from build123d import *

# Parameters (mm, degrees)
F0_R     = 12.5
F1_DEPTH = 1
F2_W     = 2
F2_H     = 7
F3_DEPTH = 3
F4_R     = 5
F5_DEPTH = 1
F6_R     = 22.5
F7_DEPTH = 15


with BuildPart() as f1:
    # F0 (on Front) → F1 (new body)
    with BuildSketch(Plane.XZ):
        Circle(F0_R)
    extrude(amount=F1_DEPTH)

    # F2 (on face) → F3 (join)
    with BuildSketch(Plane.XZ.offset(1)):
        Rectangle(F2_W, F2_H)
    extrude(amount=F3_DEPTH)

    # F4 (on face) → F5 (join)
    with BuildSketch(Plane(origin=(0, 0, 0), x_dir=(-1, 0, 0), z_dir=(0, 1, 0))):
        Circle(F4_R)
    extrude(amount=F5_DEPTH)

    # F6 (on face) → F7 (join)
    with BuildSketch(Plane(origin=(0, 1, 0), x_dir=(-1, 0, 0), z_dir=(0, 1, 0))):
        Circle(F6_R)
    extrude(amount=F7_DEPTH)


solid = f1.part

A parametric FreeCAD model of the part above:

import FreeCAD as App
import Part
import Sketcher

V = App.Vector
Q = App.Units.Quantity

doc = App.newDocument("Part")
params = doc.addObject("Spreadsheet::Sheet", "Params")
for row, (alias, value) in enumerate([
    ("sketch1_diameter", "25 mm"),
    ("pad1_length", "1 mm"),
    ("sketch2_width", "2 mm"),
    ("sketch2_height", "7 mm"),
    ("pad2_length", "3 mm"),
    ("sketch3_diameter", "10 mm"),
    ("pad3_length", "1 mm"),
    ("sketch4_diameter", "45 mm"),
    ("pad4_length", "15 mm"),
], start=1):
    params.set(f"A{row}", alias)
    params.set(f"B{row}", "=" + value)
    params.setAlias(f"B{row}", alias)

body = doc.addObject("PartDesign::Body", "Body")

# Sketch on XZ plane
sketch1 = body.newObject("Sketcher::SketchObject", "Sketch")
sketch1.AttachmentSupport = (doc.getObject("XZ_Plane"), [""])
sketch1.MapMode = "FlatFace"
sketch1.addGeometry(Part.Circle(V(0, 0, 0), V(0, 0, 1), 12), False)
sketch1.addConstraint([
    Sketcher.Constraint("Coincident", 0, 3, -1, 1),
    Sketcher.Constraint("Diameter", 0, Q("25 mm")),
])
sketch1.setExpression("Constraints[1]", "Params.sketch1_diameter")
pad1 = body.newObject("PartDesign::Pad", "Pad")
pad1.Profile = sketch1
pad1.setExpression("Length", "Params.pad1_length")

# Sketch on XZ plane
sketch2 = body.newObject("Sketcher::SketchObject", "Sketch001")
sketch2.AttachmentSupport = (doc.getObject("XZ_Plane"), [""])
sketch2.MapMode = "FlatFace"
sketch2.AttachmentOffset = App.Placement(V(0, 0, 1), App.Rotation())
sketch2.addGeometry([
    Part.LineSegment(V(-1, 3.5, 0), V(-1, -3.5, 0)),
    Part.LineSegment(V(-1, -3.5, 0), V(1, -3.5, 0)),
    Part.LineSegment(V(1, -3.5, 0), V(1, 3.5, 0)),
    Part.LineSegment(V(1, 3.5, 0), V(-1, 3.5, 0)),
], False)
sketch2.addConstraint([
    Sketcher.Constraint("Coincident", 0, 2, 1, 1),
    Sketcher.Constraint("Coincident", 1, 2, 2, 1),
    Sketcher.Constraint("Coincident", 2, 2, 3, 1),
    Sketcher.Constraint("Coincident", 3, 2, 0, 1),
    Sketcher.Constraint("Vertical", 0),
    Sketcher.Constraint("Horizontal", 1),
    Sketcher.Constraint("Vertical", 2),
    Sketcher.Constraint("Horizontal", 3),
    Sketcher.Constraint("Symmetric", 0, 2, 2, 2, -1, 1),
    Sketcher.Constraint("DistanceX", 1, 1, 1, 2, Q("2 mm")),
    Sketcher.Constraint("DistanceY", 0, 2, 0, 1, Q("7 mm")),
])
sketch2.setExpression("Constraints[9]", "Params.sketch2_width")
sketch2.setExpression("Constraints[10]", "Params.sketch2_height")
pad2 = body.newObject("PartDesign::Pad", "Pad001")
pad2.Profile = sketch2
pad2.setExpression("Length", "Params.pad2_length")

# Sketch on XZ plane
sketch3 = body.newObject("Sketcher::SketchObject", "Sketch002")
sketch3.AttachmentSupport = (doc.getObject("XZ_Plane"), [""])
sketch3.MapMode = "FlatFace"
sketch3.addGeometry(Part.Circle(V(0, 0, 0), V(0, 0, 1), 5), False)
sketch3.addConstraint([
    Sketcher.Constraint("Coincident", 0, 3, -1, 1),
    Sketcher.Constraint("Diameter", 0, Q("10 mm")),
])
sketch3.setExpression("Constraints[1]", "Params.sketch3_diameter")
pad3 = body.newObject("PartDesign::Pad", "Pad002")
pad3.Profile = sketch3
pad3.setExpression("Length", "Params.pad3_length")
pad3.Reversed = True

# Sketch on XZ plane
sketch4 = body.newObject("Sketcher::SketchObject", "Sketch003")
sketch4.AttachmentSupport = (doc.getObject("XZ_Plane"), [""])
sketch4.MapMode = "FlatFace"
sketch4.AttachmentOffset = App.Placement(V(0, 0, -1), App.Rotation())
sketch4.addGeometry(Part.Circle(V(0, 0, 0), V(0, 0, 1), 22), False)
sketch4.addConstraint([
    Sketcher.Constraint("Coincident", 0, 3, -1, 1),
    Sketcher.Constraint("Diameter", 0, Q("45 mm")),
])
sketch4.setExpression("Constraints[1]", "Params.sketch4_diameter")
pad4 = body.newObject("PartDesign::Pad", "Pad003")
pad4.Profile = sketch4
pad4.setExpression("Length", "Params.pad4_length")
pad4.Reversed = True

doc.recompute()
